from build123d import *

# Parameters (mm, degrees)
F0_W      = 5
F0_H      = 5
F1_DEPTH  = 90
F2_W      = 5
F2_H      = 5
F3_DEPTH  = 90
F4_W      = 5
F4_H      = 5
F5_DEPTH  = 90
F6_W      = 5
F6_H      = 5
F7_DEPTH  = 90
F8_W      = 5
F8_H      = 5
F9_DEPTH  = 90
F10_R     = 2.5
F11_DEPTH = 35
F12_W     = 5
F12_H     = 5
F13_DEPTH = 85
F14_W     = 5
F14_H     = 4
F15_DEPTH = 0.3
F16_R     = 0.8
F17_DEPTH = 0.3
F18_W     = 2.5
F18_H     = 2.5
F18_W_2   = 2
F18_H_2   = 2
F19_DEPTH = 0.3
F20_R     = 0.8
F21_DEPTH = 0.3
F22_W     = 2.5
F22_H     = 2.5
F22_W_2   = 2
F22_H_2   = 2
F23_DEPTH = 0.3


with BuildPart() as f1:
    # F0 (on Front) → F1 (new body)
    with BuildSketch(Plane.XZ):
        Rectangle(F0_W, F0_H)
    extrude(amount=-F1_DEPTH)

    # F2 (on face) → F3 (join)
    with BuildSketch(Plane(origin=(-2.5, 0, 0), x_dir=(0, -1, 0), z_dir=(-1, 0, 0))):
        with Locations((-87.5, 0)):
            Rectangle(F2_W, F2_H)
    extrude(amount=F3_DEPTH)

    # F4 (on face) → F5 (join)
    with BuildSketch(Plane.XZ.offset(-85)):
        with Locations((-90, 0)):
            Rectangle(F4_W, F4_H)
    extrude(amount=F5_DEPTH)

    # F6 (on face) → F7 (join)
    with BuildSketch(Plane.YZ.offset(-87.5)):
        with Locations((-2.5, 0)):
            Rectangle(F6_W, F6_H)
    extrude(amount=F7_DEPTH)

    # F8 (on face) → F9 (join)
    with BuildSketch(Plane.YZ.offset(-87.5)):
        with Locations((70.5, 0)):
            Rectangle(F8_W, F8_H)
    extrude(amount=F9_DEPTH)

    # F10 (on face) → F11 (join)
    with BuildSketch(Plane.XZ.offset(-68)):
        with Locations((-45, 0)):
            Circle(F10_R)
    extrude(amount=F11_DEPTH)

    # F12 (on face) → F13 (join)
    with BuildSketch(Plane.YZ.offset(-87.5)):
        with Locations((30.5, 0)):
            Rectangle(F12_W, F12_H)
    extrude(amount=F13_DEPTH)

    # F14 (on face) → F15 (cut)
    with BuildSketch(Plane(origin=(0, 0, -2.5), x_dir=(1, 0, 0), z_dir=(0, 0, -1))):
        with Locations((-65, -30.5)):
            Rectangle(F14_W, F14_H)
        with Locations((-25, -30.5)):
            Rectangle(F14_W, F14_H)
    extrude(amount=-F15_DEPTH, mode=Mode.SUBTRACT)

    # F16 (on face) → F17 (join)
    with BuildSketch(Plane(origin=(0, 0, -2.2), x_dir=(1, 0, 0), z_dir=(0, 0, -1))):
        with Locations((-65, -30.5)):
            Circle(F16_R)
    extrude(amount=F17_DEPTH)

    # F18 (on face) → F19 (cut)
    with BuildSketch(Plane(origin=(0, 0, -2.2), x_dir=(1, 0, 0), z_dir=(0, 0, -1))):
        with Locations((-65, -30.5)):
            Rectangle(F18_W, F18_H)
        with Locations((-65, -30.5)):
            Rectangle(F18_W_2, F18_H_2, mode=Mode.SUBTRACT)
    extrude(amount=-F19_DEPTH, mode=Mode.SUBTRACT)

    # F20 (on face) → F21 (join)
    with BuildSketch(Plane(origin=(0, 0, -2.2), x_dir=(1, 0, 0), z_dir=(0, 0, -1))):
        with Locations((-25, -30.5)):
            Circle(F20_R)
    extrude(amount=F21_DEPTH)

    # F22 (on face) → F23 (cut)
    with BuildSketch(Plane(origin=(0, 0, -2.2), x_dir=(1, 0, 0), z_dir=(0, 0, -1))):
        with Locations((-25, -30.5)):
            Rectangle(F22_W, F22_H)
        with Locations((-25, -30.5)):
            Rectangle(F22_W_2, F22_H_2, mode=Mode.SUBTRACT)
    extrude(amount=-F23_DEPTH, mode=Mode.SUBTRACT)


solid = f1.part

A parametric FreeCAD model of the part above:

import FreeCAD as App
import Part
import Sketcher
from FreeCAD import Vector

doc = App.newDocument("Part")
body = doc.addObject("PartDesign::Body", "Body")

sketch1 = doc.addObject("Sketcher::SketchObject", "Sketch")
body.addObject(sketch1)
sketch1.AttachmentSupport = (doc.XZ_Plane, [""])
sketch1.MapMode = "FlatFace"
sketch1.addGeometry([
    Part.LineSegment(Vector(-2, 2, 0), Vector(-2, -2, 0)),
    Part.LineSegment(Vector(-2, -2, 0), Vector(2, -2, 0)),
    Part.LineSegment(Vector(2, -2, 0), Vector(2, 2, 0)),
    Part.LineSegment(Vector(2, 2, 0), Vector(-2, 2, 0)),
], False)
sketch1.addConstraint([
    Sketcher.Constraint("Coincident", 0, 2, 1, 1),
    Sketcher.Constraint("Coincident", 1, 2, 2, 1),
    Sketcher.Constraint("Coincident", 2, 2, 3, 1),
    Sketcher.Constraint("Coincident", 3, 2, 0, 1),
    Sketcher.Constraint("Vertical", 0),
    Sketcher.Constraint("Horizontal", 1),
    Sketcher.Constraint("Vertical", 2),
    Sketcher.Constraint("Horizontal", 3),
    Sketcher.Constraint("Symmetric", 0, 2, 2, 2, -1, 1),
    Sketcher.Constraint("Equal", 3, 0),
    Sketcher.Constraint("DistanceX", 1, 1, 1, 2, 5.0),
])
pad1 = doc.addObject("PartDesign::Pad", "Pad")
body.addObject(pad1)
pad1.Profile = sketch1
pad1.Length = 90
pad1.Reversed = True

sketch2 = doc.addObject("Sketcher::SketchObject", "Sketch001")
body.addObject(sketch2)
sketch2.AttachmentSupport = (doc.YZ_Plane, [""])
sketch2.MapMode = "FlatFace"
sketch2.AttachmentOffset = App.Placement(Vector(0, 0, -2.5), App.Rotation())
sketch2.addGeometry([
    Part.LineSegment(Vector(90, 2, 0), Vector(90, -2, 0)),
    Part.LineSegment(Vector(90, -2, 0), Vector(85, -2, 0)),
    Part.LineSegment(Vector(85, -2, 0), Vector(85, 2, 0)),
    Part.LineSegment(Vector(85, 2, 0), Vector(90, 2, 0)),
], False)
sketch2.addConstraint([
    Sketcher.Constraint("Coincident", 0, 2, 1, 1),
    Sketcher.Constraint("Coincident", 1, 2, 2, 1),
    Sketcher.Constraint("Coincident", 2, 2, 3, 1),
    Sketcher.Constraint("Coincident", 3, 2, 0, 1),
    Sketcher.Constraint("Vertical", 0),
    Sketcher.Constraint("Horizontal", 1),
    Sketcher.Constraint("Vertical", 2),
    Sketcher.Constraint("Horizontal", 3),
    Sketcher.Constraint("Equal", 3, 0),
    Sketcher.Constraint("DistanceX", 1, 2, 1, 1, 5.0),
    Sketcher.Constraint("DistanceX", -1, 1, 0, 2, 90.0),
    Sketcher.Constraint("DistanceY", 0, 2, -1, 1, 2.5),
])
pad2 = doc.addObject("PartDesign::Pad", "Pad001")
body.addObject(pad2)
pad2.Profile = sketch2
pad2.Length = 90
pad2.Reversed = True

sketch3 = doc.addObject("Sketcher::SketchObject", "Sketch002")
body.addObject(sketch3)
sketch3.AttachmentSupport = (doc.XZ_Plane, [""])
sketch3.MapMode = "FlatFace"
sketch3.AttachmentOffset = App.Placement(Vector(0, 0, -85), App.Rotation())
sketch3.addGeometry([
    Part.LineSegment(Vector(-92, 2, 0), Vector(-92, -2, 0)),
    Part.LineSegment(Vector(-92, -2, 0), Vector(-88, -2, 0)),
    Part.LineSegment(Vector(-88, -2, 0), Vector(-88, 2, 0)),
    Part.LineSegment(Vector(-88, 2, 0), Vector(-92, 2, 0)),
], False)
sketch3.addConstraint([
    Sketcher.Constraint("Coincident", 0, 2, 1, 1),
    Sketcher.Constraint("Coincident", 1, 2, 2, 1),
    Sketcher.Constraint("Coincident", 2, 2, 3, 1),
    Sketcher.Constraint("Coincident", 3, 2, 0, 1),
    Sketcher.Constraint("Vertical", 0),
    Sketcher.Constraint("Horizontal", 1),
    Sketcher.Constraint("Vertical", 2),
    Sketcher.Constraint("Horizontal", 3),
    Sketcher.Constraint("Equal", 3, 0),
    Sketcher.Constraint("DistanceX", 1, 1, 1, 2, 5.0),
    Sketcher.Constraint("DistanceX", 0, 2, -1, 1, 92.5),
    Sketcher.Constraint("DistanceY", 0, 2, -1, 1, 2.5),
])
pad3 = doc.addObject("PartDesign::Pad", "Pad002")
body.addObject(pad3)
pad3.Profile = sketch3
pad3.Length = 90

sketch4 = doc.addObject("Sketcher::SketchObject", "Sketch003")
body.addObject(sketch4)
sketch4.AttachmentSupport = (doc.YZ_Plane, [""])
sketch4.MapMode = "FlatFace"
sketch4.AttachmentOffset = App.Placement(Vector(0, 0, -87.5), App.Rotation())
sketch4.addGeometry([
    Part.LineSegment(Vector(-5, 2, 0), Vector(-5, -2, 0)),
    Part.LineSegment(Vector(-5, -2, 0), Vector(0, -2, 0)),
    Part.LineSegment(Vector(0, -2, 0), Vector(0, 2, 0)),
    Part.LineSegment(Vector(0, 2, 0), Vector(-5, 2, 0)),
], False)
sketch4.addConstraint([
    Sketcher.Constraint("Coincident", 0, 2, 1, 1),
    Sketcher.Constraint("Coincident", 1, 2, 2, 1),
    Sketcher.Constraint("Coincident", 2, 2, 3, 1),
    Sketcher.Constraint("Coincident", 3, 2, 0, 1),
    Sketcher.Constraint("Vertical", 0),
    Sketcher.Constraint("Horizontal", 1),
    Sketcher.Constraint("Vertical", 2),
    Sketcher.Constraint("Horizontal", 3),
    Sketcher.Constraint("Symmetric", 1, 2, 2, 2, -1, 1),
    Sketcher.Constraint("Equal", 3, 0),
    Sketcher.Constraint("DistanceX", 1, 1, 1, 2, 5.0),
])
pad4 = doc.addObject("PartDesign::Pad", "Pad003")
body.addObject(pad4)
pad4.Profile = sketch4
pad4.Length = 90

sketch5 = doc.addObject("Sketcher::SketchObject", "Sketch004")
body.addObject(sketch5)
sketch5.AttachmentSupport = (doc.YZ_Plane, [""])
sketch5.MapMode = "FlatFace"
sketch5.AttachmentOffset = App.Placement(Vector(0, 0, -87.5), App.Rotation())
sketch5.addGeometry([
    Part.LineSegment(Vector(68, 2, 0), Vector(68, -2, 0)),
    Part.LineSegment(Vector(68, -2, 0), Vector(73, -2, 0)),
    Part.LineSegment(Vector(73, -2, 0), Vector(73, 2, 0)),
    Part.LineSegment(Vector(73, 2, 0), Vector(68, 2, 0)),
], False)
sketch5.addConstraint([
    Sketcher.Constraint("Coincident", 0, 2, 1, 1),
    Sketcher.Constraint("Coincident", 1, 2, 2, 1),
    Sketcher.Constraint("Coincident", 2, 2, 3, 1),
    Sketcher.Constraint("Coincident", 3, 2, 0, 1),
    Sketcher.Constraint("Vertical", 0),
    Sketcher.Constraint("Horizontal", 1),
    Sketcher.Constraint("Vertical", 2),
    Sketcher.Constraint("Horizontal", 3),
    Sketcher.Constraint("Equal", 3, 0),
    Sketcher.Constraint("DistanceX", 1, 1, 1, 2, 5.0),
    Sketcher.Constraint("DistanceX", -1, 1, 0, 2, 68.0),
    Sketcher.Constraint("DistanceY", 0, 2, -1, 1, 2.5),
])
pad5 = doc.addObject("PartDesign::Pad", "Pad004")
body.addObject(pad5)
pad5.Profile = sketch5
pad5.Length = 90

sketch6 = doc.addObject("Sketcher::SketchObject", "Sketch005")
body.addObject(sketch6)
sketch6.AttachmentSupport = (doc.XZ_Plane, [""])
sketch6.MapMode = "FlatFace"
sketch6.AttachmentOffset = App.Placement(Vector(0, 0, -68), App.Rotation())
sketch6.addGeometry(Part.Circle(Vector(-45, 0, 0), Vector(0, 0, 1), 2.5), False)
sketch6.addConstraint([
    Sketcher.Constraint("PointOnObject", 0, 3, -1),
    Sketcher.Constraint("Diameter", 0, 5.0),
    Sketcher.Constraint("DistanceX", 0, 3, -1, 1, 45.0),
])
pad6 = doc.addObject("PartDesign::Pad", "Pad005")
body.addObject(pad6)
pad6.Profile = sketch6
pad6.Length = 35

sketch7 = doc.addObject("Sketcher::SketchObject", "Sketch006")
body.addObject(sketch7)
sketch7.AttachmentSupport = (doc.YZ_Plane, [""])
sketch7.MapMode = "FlatFace"
sketch7.AttachmentOffset = App.Placement(Vector(0, 0, -87.5), App.Rotation())
sketch7.addGeometry([
    Part.LineSegment(Vector(28, 2, 0), Vector(28, -2, 0)),
    Part.LineSegment(Vector(28, -2, 0), Vector(33, -2, 0)),
    Part.LineSegment(Vector(33, -2, 0), Vector(33, 2, 0)),
    Part.LineSegment(Vector(33, 2, 0), Vector(28, 2, 0)),
], False)
sketch7.addConstraint([
    Sketcher.Constraint("Coincident", 0, 2, 1, 1),
    Sketcher.Constraint("Coincident", 1, 2, 2, 1),
    Sketcher.Constraint("Coincident", 2, 2, 3, 1),
    Sketcher.Constraint("Coincident", 3, 2, 0, 1),
    Sketcher.Constraint("Vertical", 0),
    Sketcher.Constraint("Horizontal", 1),
    Sketcher.Constraint("Vertical", 2),
    Sketcher.Constraint("Horizontal", 3),
    Sketcher.Constraint("Equal", 3, 0),
    Sketcher.Constraint("DistanceX", 1, 1, 1, 2, 5.0),
    Sketcher.Constraint("DistanceX", -1, 1, 0, 2, 28.0),
    Sketcher.Constraint("DistanceY", 0, 2, -1, 1, 2.5),
])
pad7 = doc.addObject("PartDesign::Pad", "Pad006")
body.addObject(pad7)
pad7.Profile = sketch7
pad7.Length = 85

sketch8 = doc.addObject("Sketcher::SketchObject", "Sketch007")
body.addObject(sketch8)
sketch8.AttachmentSupport = (doc.XY_Plane, [""])
sketch8.MapMode = "FlatFace"
sketch8.AttachmentOffset = App.Placement(Vector(0, 0, -2.5), App.Rotation())
sketch8.addGeometry([
    Part.LineSegment(Vector(-67.5, 28.5, 0), Vector(-67.5, 32.5, 0)),
    Part.LineSegment(Vector(-67.5, 32.5, 0), Vector(-62.5, 32.5, 0)),
    Part.LineSegment(Vector(-62.5, 32.5, 0), Vector(-62.5, 28.5, 0)),
    Part.LineSegment(Vector(-62.5, 28.5, 0), Vector(-67.5, 28.5, 0)),
    Part.LineSegment(Vector(-27.5, 28.5, 0), Vector(-27.5, 32.5, 0)),
    Part.LineSegment(Vector(-27.5, 32.5, 0), Vector(-22.5, 32.5, 0)),
    Part.LineSegment(Vector(-22.5, 32.5, 0), Vector(-22.5, 28.5, 0)),
    Part.LineSegment(Vector(-22.5, 28.5, 0), Vector(-27.5, 28.5, 0)),
], False)
sketch8.addConstraint([
    Sketcher.Constraint("Coincident", 0, 2, 1, 1),
    Sketcher.Constraint("Coincident", 1, 2, 2, 1),
    Sketcher.Constraint("Coincident", 2, 2, 3, 1),
    Sketcher.Constraint("Coincident", 3, 2, 0, 1),
    Sketcher.Constraint("Coincident", 4, 2, 5, 1),
    Sketcher.Constraint("Coincident", 5, 2, 6, 1),
    Sketcher.Constraint("Coincident", 6, 2, 7, 1),
    Sketcher.Constraint("Coincident", 7, 2, 4, 1),
    Sketcher.Constraint("Vertical", 0),
    Sketcher.Constraint("Horizontal", 1),
    Sketcher.Constraint("Vertical", 2),
    Sketcher.Constraint("Horizontal", 3),
    Sketcher.Constraint("Vertical", 4),
    Sketcher.Constraint("Horizontal", 5),
    Sketcher.Constraint("Vertical", 6),
    Sketcher.Constraint("Horizontal", 7),
    Sketcher.Constraint("Horizontal", 1, 2, 4, 2),
    Sketcher.Constraint("Horizontal", 3, 2, 6, 2),
    Sketcher.Constraint("Equal", 3, 5),
    Sketcher.Constraint("DistanceX", 1, 1, 1, 2, 5.0),
    Sketcher.Constraint("DistanceY", 0, 1, 0, 2, 4.0),
    Sketcher.Constraint("DistanceX", 1, 2, 4, 2, 35.0),
    Sketcher.Constraint("DistanceX", 0, 2, -1, 1, 67.5),
    Sketcher.Constraint("DistanceY", -1, 1, 0, 2, 32.5),
])
pocket1 = doc.addObject("PartDesign::Pocket", "Pocket")
body.addObject(pocket1)
pocket1.Profile = sketch8
pocket1.Length = 0.3
pocket1.Reversed = True

sketch9 = doc.addObject("Sketcher::SketchObject", "Sketch008")
body.addObject(sketch9)
sketch9.AttachmentSupport = (doc.XY_Plane, [""])
sketch9.MapMode = "FlatFace"
sketch9.AttachmentOffset = App.Placement(Vector(0, 0, -2.2), App.Rotation())
sketch9.addGeometry(Part.Circle(Vector(-65, 30.5, 0), Vector(0, 0, 1), 0.8), False)
sketch9.addConstraint([
    Sketcher.Constraint("Diameter", 0, 1.6),
    Sketcher.Constraint("DistanceX", 0, 3, -1, 1, 65.0),
    Sketcher.Constraint("DistanceY", -1, 1, 0, 3, 30.5),
])
pad8 = doc.addObject("PartDesign::Pad", "Pad007")
body.addObject(pad8)
pad8.Profile = sketch9
pad8.Length = 0.3
pad8.Reversed = True

sketch10 = doc.addObject("Sketcher::SketchObject", "Sketch009")
body.addObject(sketch10)
sketch10.AttachmentSupport = (doc.XY_Plane, [""])
sketch10.MapMode = "FlatFace"
sketch10.AttachmentOffset = App.Placement(Vector(0, 0, -2.2), App.Rotation())
sketch10.addGeometry([
    Part.LineSegment(Vector(-66.2, 29.2, 0), Vector(-66.2, 31.8, 0)),
    Part.LineSegment(Vector(-66.2, 31.8, 0), Vector(-63.8, 31.8, 0)),
    Part.LineSegment(Vector(-63.8, 31.8, 0), Vector(-63.8, 29.2, 0)),
    Part.LineSegment(Vector(-63.8, 29.2, 0), Vector(-66.2, 29.2, 0)),
    Part.LineSegment(Vector(-64, 31.5, 0), Vector(-66, 31.5, 0)),
    Part.LineSegment(Vector(-66, 31.5, 0), Vector(-66, 29.5, 0)),
    Part.LineSegment(Vector(-66, 29.5, 0), Vector(-64, 29.5, 0)),
    Part.LineSegment(Vector(-64, 29.5, 0), Vector(-64, 31.5, 0)),
], False)
sketch10.addConstraint([
    Sketcher.Constraint("Coincident", 0, 2, 1, 1),
    Sketcher.Constraint("Coincident", 1, 2, 2, 1),
    Sketcher.Constraint("Coincident", 2, 2, 3, 1),
    Sketcher.Constraint("Coincident", 3, 2, 0, 1),
    Sketcher.Constraint("Coincident", 4, 2, 5, 1),
    Sketcher.Constraint("Coincident", 5, 2, 6, 1),
    Sketcher.Constraint("Coincident", 6, 2, 7, 1),
    Sketcher.Constraint("Coincident", 7, 2, 4, 1),
    Sketcher.Constraint("Vertical", 0),
    Sketcher.Constraint("Horizontal", 1),
    Sketcher.Constraint("Vertical", 2),
    Sketcher.Constraint("Horizontal", 3),
    Sketcher.Constraint("Horizontal", 4),
    Sketcher.Constraint("Vertical", 5),
    Sketcher.Constraint("Horizontal", 6),
    Sketcher.Constraint("Vertical", 7),
    Sketcher.Constraint("Equal", 3, 0),
    Sketcher.Constraint("Equal", 6, 5),
    Sketcher.Constraint("DistanceX", 4, 2, 4, 1, 2.0),
    Sketcher.Constraint("DistanceX", 1, 1, 1, 2, 2.5),
    Sketcher.Constraint("DistanceX", 4, 2, -1, 1, 66.0),
    Sketcher.Constraint("DistanceY", -1, 1, 4, 2, 31.5),
    Sketcher.Constraint("DistanceX", 0, 2, -1, 1, 66.25),
    Sketcher.Constraint("DistanceY", -1, 1, 0, 2, 31.75),
])
pocket2 = doc.addObject("PartDesign::Pocket", "Pocket001")
body.addObject(pocket2)
pocket2.Profile = sketch10
pocket2.Length = 0.3
pocket2.Reversed = True

sketch11 = doc.addObject("Sketcher::SketchObject", "Sketch010")
body.addObject(sketch11)
sketch11.AttachmentSupport = (doc.XY_Plane, [""])
sketch11.MapMode = "FlatFace"
sketch11.AttachmentOffset = App.Placement(Vector(0, 0, -2.2), App.Rotation())
sketch11.addGeometry(Part.Circle(Vector(-25, 30.5, 0), Vector(0, 0, 1), 0.8), False)
sketch11.addConstraint([
    Sketcher.Constraint("Diameter", 0, 1.6),
    Sketcher.Constraint("DistanceX", 0, 3, -1, 1, 25.0),
    Sketcher.Constraint("DistanceY", -1, 1, 0, 3, 30.5),
])
pad9 = doc.addObject("PartDesign::Pad", "Pad008")
body.addObject(pad9)
pad9.Profile = sketch11
pad9.Length = 0.3
pad9.Reversed = True

sketch12 = doc.addObject("Sketcher::SketchObject", "Sketch011")
body.addObject(sketch12)
sketch12.AttachmentSupport = (doc.XY_Plane, [""])
sketch12.MapMode = "FlatFace"
sketch12.AttachmentOffset = App.Placement(Vector(0, 0, -2.2), App.Rotation())
sketch12.addGeometry([
    Part.LineSegment(Vector(-26.2, 29.2, 0), Vector(-26.2, 31.8, 0)),
    Part.LineSegment(Vector(-26.2, 31.8, 0), Vector(-23.8, 31.8, 0)),
    Part.LineSegment(Vector(-23.8, 31.8, 0), Vector(-23.8, 29.2, 0)),
    Part.LineSegment(Vector(-23.8, 29.2, 0), Vector(-26.2, 29.2, 0)),
    Part.LineSegment(Vector(-24, 31.5, 0), Vector(-26, 31.5, 0)),
    Part.LineSegment(Vector(-26, 31.5, 0), Vector(-26, 29.5, 0)),
    Part.LineSegment(Vector(-26, 29.5, 0), Vector(-24, 29.5, 0)),
    Part.LineSegment(Vector(-24, 29.5, 0), Vector(-24, 31.5, 0)),
], False)
sketch12.addConstraint([
    Sketcher.Constraint("Coincident", 0, 2, 1, 1),
    Sketcher.Constraint("Coincident", 1, 2, 2, 1),
    Sketcher.Constraint("Coincident", 2, 2, 3, 1),
    Sketcher.Constraint("Coincident", 3, 2, 0, 1),
    Sketcher.Constraint("Coincident", 4, 2, 5, 1),
    Sketcher.Constraint("Coincident", 5, 2, 6, 1),
    Sketcher.Constraint("Coincident", 6, 2, 7, 1),
    Sketcher.Constraint("Coincident", 7, 2, 4, 1),
    Sketcher.Constraint("Vertical", 0),
    Sketcher.Constraint("Horizontal", 1),
    Sketcher.Constraint("Vertical", 2),
    Sketcher.Constraint("Horizontal", 3),
    Sketcher.Constraint("Horizontal", 4),
    Sketcher.Constraint("Vertical", 5),
    Sketcher.Constraint("Horizontal", 6),
    Sketcher.Constraint("Vertical", 7),
    Sketcher.Constraint("Equal", 3, 0),
    Sketcher.Constraint("Equal", 6, 5),
    Sketcher.Constraint("DistanceX", 4, 2, 4, 1, 2.0),
    Sketcher.Constraint("DistanceX", 1, 1, 1, 2, 2.5),
    Sketcher.Constraint("DistanceX", 4, 2, -1, 1, 26.0),
    Sketcher.Constraint("DistanceY", -1, 1, 4, 2, 31.5),
    Sketcher.Constraint("DistanceX", 0, 2, -1, 1, 26.25),
    Sketcher.Constraint("DistanceY", -1, 1, 0, 2, 31.75),
])
pocket3 = doc.addObject("PartDesign::Pocket", "Pocket002")
body.addObject(pocket3)
pocket3.Profile = sketch12
pocket3.Length = 0.3
pocket3.Reversed = True

doc.recompute()
